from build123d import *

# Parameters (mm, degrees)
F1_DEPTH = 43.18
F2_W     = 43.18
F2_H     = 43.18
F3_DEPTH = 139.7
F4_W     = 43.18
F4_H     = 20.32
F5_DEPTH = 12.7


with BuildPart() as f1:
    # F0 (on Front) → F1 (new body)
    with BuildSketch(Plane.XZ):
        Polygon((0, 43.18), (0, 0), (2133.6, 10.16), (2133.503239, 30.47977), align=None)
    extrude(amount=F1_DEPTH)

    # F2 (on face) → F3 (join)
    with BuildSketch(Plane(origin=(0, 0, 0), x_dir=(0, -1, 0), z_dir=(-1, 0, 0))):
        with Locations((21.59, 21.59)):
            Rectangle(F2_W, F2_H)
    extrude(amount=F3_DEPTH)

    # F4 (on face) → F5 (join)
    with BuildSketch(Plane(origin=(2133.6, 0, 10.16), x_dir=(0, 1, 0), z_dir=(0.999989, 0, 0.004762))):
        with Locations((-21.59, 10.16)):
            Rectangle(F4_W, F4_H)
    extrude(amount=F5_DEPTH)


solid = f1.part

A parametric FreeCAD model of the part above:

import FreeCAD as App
import Part
import Sketcher
Q = App.Units.Quantity

doc = App.newDocument("Part")
body = doc.addObject("PartDesign::Body", "Body")

# Sketch on XZ plane
sketch1 = doc.addObject("Sketcher::SketchObject", "Sketch")
body.addObject(sketch1)
sketch1.AttachmentSupport = (doc.XZ_Plane, [""])
sketch1.MapMode = "FlatFace"
sketch1.addGeometry(Part.LineSegment(App.Vector(0, 43.18, 0), App.Vector(0, 0, 0)), False)
sketch1.addGeometry(Part.LineSegment(App.Vector(0, 0, 0), App.Vector(2133.6, 10.16, 0)), False)
sketch1.addGeometry(Part.LineSegment(App.Vector(2133.6, 10.16, 0), App.Vector(2133.503239, 30.47977, 0)), False)
sketch1.addGeometry(Part.LineSegment(App.Vector(2133.503239, 30.47977, 0), App.Vector(0, 43.18, 0)), False)
sketch1.addConstraint(Sketcher.Constraint("Coincident", 0, 2, 1, 1))
sketch1.addConstraint(Sketcher.Constraint("Coincident", 1, 2, 2, 1))
sketch1.addConstraint(Sketcher.Constraint("Coincident", 2, 2, 3, 1))
sketch1.addConstraint(Sketcher.Constraint("Coincident", 3, 2, 0, 1))
sketch1.addConstraint(Sketcher.Constraint("Vertical", 0))
sketch1.addConstraint(Sketcher.Constraint("Coincident", 0, 2, -1, 1))
sketch1.addConstraint(Sketcher.Constraint("Perpendicular", 1, 2))
sketch1.addConstraint(Sketcher.Constraint("DistanceY", 0, 2, 0, 1, Q("1.7 in")))
sketch1.addConstraint(Sketcher.Constraint("DistanceX", -1, 1, 1, 2, Q("84 in")))
sketch1.addConstraint(Sketcher.Constraint("Distance", 2, Q("0.8 in")))
sketch1.addConstraint(Sketcher.Constraint("DistanceY", -1, 1, 1, 2, Q("0.4 in")))
pad1 = doc.addObject("PartDesign::Pad", "Pad")
body.addObject(pad1)
pad1.Profile = sketch1
pad1.Length = Q("1.7 in")

# Sketch on YZ plane
sketch2 = doc.addObject("Sketcher::SketchObject", "Sketch001")
body.addObject(sketch2)
sketch2.AttachmentSupport = (doc.YZ_Plane, [""])
sketch2.MapMode = "FlatFace"
sketch2.addGeometry(Part.LineSegment(App.Vector(0, 43.18, 0), App.Vector(0, 0, 0)), False)
sketch2.addGeometry(Part.LineSegment(App.Vector(0, 0, 0), App.Vector(-43.18, 0, 0)), False)
sketch2.addGeometry(Part.LineSegment(App.Vector(-43.18, 0, 0), App.Vector(-43.18, 43.18, 0)), False)
sketch2.addGeometry(Part.LineSegment(App.Vector(-43.18, 43.18, 0), App.Vector(0, 43.18, 0)), False)
sketch2.addConstraint(Sketcher.Constraint("Coincident", 0, 2, 1, 1))
sketch2.addConstraint(Sketcher.Constraint("Coincident", 1, 2, 2, 1))
sketch2.addConstraint(Sketcher.Constraint("Coincident", 2, 2, 3, 1))
sketch2.addConstraint(Sketcher.Constraint("Coincident", 3, 2, 0, 1))
sketch2.addConstraint(Sketcher.Constraint("Vertical", 0))
sketch2.addConstraint(Sketcher.Constraint("Horizontal", 1))
sketch2.addConstraint(Sketcher.Constraint("Vertical", 2))
sketch2.addConstraint(Sketcher.Constraint("Horizontal", 3))
sketch2.addConstraint(Sketcher.Constraint("Coincident", 0, 2, -1, 1))
sketch2.addConstraint(Sketcher.Constraint("Equal", 3, 0))
sketch2.addConstraint(Sketcher.Constraint("DistanceX", 1, 2, 1, 1, Q("1.7 in")))
pad2 = doc.addObject("PartDesign::Pad", "Pad001")
body.addObject(pad2)
pad2.Profile = sketch2
pad2.Length = Q("5.5 in")
pad2.Reversed = True

# Sketch on an angled plane
sketch3 = doc.addObject("Sketcher::SketchObject", "Sketch002")
body.addObject(sketch3)
sketch3.Placement = App.Placement(App.Vector(2133.6, 0, 10.16), App.Rotation(App.Vector(0, 1, 0), App.Vector(-0.004761998, 0, 0.999988662), App.Vector(0.999988662, 0, 0.004761998), "ZXY"))
sketch3.addGeometry(Part.LineSegment(App.Vector(-43.18, 20.32, 0), App.Vector(-43.18, 0, 0)), False)
sketch3.addGeometry(Part.LineSegment(App.Vector(-43.18, 0, 0), App.Vector(0, 0, 0)), False)
sketch3.addGeometry(Part.LineSegment(App.Vector(0, 0, 0), App.Vector(0, 20.32, 0)), False)
sketch3.addGeometry(Part.LineSegment(App.Vector(0, 20.32, 0), App.Vector(-43.18, 20.32, 0)), False)
sketch3.addConstraint(Sketcher.Constraint("Coincident", 0, 2, 1, 1))
sketch3.addConstraint(Sketcher.Constraint("Coincident", 1, 2, 2, 1))
sketch3.addConstraint(Sketcher.Constraint("Coincident", 2, 2, 3, 1))
sketch3.addConstraint(Sketcher.Constraint("Coincident", 3, 2, 0, 1))
sketch3.addConstraint(Sketcher.Constraint("Vertical", 0))
sketch3.addConstraint(Sketcher.Constraint("Horizontal", 1))
sketch3.addConstraint(Sketcher.Constraint("Vertical", 2))
sketch3.addConstraint(Sketcher.Constraint("Horizontal", 3))
sketch3.addConstraint(Sketcher.Constraint("Coincident", 1, 2, -1, 1))
sketch3.addConstraint(Sketcher.Constraint("DistanceX", 1, 1, 1, 2, Q("1.7 in")))
sketch3.addConstraint(Sketcher.Constraint("DistanceY", 0, 2, 0, 1, Q("0.8 in")))
pad3 = doc.addObject("PartDesign::Pad", "Pad002")
body.addObject(pad3)
pad3.Profile = sketch3
pad3.Length = Q("0.5 in")

doc.recompute()
